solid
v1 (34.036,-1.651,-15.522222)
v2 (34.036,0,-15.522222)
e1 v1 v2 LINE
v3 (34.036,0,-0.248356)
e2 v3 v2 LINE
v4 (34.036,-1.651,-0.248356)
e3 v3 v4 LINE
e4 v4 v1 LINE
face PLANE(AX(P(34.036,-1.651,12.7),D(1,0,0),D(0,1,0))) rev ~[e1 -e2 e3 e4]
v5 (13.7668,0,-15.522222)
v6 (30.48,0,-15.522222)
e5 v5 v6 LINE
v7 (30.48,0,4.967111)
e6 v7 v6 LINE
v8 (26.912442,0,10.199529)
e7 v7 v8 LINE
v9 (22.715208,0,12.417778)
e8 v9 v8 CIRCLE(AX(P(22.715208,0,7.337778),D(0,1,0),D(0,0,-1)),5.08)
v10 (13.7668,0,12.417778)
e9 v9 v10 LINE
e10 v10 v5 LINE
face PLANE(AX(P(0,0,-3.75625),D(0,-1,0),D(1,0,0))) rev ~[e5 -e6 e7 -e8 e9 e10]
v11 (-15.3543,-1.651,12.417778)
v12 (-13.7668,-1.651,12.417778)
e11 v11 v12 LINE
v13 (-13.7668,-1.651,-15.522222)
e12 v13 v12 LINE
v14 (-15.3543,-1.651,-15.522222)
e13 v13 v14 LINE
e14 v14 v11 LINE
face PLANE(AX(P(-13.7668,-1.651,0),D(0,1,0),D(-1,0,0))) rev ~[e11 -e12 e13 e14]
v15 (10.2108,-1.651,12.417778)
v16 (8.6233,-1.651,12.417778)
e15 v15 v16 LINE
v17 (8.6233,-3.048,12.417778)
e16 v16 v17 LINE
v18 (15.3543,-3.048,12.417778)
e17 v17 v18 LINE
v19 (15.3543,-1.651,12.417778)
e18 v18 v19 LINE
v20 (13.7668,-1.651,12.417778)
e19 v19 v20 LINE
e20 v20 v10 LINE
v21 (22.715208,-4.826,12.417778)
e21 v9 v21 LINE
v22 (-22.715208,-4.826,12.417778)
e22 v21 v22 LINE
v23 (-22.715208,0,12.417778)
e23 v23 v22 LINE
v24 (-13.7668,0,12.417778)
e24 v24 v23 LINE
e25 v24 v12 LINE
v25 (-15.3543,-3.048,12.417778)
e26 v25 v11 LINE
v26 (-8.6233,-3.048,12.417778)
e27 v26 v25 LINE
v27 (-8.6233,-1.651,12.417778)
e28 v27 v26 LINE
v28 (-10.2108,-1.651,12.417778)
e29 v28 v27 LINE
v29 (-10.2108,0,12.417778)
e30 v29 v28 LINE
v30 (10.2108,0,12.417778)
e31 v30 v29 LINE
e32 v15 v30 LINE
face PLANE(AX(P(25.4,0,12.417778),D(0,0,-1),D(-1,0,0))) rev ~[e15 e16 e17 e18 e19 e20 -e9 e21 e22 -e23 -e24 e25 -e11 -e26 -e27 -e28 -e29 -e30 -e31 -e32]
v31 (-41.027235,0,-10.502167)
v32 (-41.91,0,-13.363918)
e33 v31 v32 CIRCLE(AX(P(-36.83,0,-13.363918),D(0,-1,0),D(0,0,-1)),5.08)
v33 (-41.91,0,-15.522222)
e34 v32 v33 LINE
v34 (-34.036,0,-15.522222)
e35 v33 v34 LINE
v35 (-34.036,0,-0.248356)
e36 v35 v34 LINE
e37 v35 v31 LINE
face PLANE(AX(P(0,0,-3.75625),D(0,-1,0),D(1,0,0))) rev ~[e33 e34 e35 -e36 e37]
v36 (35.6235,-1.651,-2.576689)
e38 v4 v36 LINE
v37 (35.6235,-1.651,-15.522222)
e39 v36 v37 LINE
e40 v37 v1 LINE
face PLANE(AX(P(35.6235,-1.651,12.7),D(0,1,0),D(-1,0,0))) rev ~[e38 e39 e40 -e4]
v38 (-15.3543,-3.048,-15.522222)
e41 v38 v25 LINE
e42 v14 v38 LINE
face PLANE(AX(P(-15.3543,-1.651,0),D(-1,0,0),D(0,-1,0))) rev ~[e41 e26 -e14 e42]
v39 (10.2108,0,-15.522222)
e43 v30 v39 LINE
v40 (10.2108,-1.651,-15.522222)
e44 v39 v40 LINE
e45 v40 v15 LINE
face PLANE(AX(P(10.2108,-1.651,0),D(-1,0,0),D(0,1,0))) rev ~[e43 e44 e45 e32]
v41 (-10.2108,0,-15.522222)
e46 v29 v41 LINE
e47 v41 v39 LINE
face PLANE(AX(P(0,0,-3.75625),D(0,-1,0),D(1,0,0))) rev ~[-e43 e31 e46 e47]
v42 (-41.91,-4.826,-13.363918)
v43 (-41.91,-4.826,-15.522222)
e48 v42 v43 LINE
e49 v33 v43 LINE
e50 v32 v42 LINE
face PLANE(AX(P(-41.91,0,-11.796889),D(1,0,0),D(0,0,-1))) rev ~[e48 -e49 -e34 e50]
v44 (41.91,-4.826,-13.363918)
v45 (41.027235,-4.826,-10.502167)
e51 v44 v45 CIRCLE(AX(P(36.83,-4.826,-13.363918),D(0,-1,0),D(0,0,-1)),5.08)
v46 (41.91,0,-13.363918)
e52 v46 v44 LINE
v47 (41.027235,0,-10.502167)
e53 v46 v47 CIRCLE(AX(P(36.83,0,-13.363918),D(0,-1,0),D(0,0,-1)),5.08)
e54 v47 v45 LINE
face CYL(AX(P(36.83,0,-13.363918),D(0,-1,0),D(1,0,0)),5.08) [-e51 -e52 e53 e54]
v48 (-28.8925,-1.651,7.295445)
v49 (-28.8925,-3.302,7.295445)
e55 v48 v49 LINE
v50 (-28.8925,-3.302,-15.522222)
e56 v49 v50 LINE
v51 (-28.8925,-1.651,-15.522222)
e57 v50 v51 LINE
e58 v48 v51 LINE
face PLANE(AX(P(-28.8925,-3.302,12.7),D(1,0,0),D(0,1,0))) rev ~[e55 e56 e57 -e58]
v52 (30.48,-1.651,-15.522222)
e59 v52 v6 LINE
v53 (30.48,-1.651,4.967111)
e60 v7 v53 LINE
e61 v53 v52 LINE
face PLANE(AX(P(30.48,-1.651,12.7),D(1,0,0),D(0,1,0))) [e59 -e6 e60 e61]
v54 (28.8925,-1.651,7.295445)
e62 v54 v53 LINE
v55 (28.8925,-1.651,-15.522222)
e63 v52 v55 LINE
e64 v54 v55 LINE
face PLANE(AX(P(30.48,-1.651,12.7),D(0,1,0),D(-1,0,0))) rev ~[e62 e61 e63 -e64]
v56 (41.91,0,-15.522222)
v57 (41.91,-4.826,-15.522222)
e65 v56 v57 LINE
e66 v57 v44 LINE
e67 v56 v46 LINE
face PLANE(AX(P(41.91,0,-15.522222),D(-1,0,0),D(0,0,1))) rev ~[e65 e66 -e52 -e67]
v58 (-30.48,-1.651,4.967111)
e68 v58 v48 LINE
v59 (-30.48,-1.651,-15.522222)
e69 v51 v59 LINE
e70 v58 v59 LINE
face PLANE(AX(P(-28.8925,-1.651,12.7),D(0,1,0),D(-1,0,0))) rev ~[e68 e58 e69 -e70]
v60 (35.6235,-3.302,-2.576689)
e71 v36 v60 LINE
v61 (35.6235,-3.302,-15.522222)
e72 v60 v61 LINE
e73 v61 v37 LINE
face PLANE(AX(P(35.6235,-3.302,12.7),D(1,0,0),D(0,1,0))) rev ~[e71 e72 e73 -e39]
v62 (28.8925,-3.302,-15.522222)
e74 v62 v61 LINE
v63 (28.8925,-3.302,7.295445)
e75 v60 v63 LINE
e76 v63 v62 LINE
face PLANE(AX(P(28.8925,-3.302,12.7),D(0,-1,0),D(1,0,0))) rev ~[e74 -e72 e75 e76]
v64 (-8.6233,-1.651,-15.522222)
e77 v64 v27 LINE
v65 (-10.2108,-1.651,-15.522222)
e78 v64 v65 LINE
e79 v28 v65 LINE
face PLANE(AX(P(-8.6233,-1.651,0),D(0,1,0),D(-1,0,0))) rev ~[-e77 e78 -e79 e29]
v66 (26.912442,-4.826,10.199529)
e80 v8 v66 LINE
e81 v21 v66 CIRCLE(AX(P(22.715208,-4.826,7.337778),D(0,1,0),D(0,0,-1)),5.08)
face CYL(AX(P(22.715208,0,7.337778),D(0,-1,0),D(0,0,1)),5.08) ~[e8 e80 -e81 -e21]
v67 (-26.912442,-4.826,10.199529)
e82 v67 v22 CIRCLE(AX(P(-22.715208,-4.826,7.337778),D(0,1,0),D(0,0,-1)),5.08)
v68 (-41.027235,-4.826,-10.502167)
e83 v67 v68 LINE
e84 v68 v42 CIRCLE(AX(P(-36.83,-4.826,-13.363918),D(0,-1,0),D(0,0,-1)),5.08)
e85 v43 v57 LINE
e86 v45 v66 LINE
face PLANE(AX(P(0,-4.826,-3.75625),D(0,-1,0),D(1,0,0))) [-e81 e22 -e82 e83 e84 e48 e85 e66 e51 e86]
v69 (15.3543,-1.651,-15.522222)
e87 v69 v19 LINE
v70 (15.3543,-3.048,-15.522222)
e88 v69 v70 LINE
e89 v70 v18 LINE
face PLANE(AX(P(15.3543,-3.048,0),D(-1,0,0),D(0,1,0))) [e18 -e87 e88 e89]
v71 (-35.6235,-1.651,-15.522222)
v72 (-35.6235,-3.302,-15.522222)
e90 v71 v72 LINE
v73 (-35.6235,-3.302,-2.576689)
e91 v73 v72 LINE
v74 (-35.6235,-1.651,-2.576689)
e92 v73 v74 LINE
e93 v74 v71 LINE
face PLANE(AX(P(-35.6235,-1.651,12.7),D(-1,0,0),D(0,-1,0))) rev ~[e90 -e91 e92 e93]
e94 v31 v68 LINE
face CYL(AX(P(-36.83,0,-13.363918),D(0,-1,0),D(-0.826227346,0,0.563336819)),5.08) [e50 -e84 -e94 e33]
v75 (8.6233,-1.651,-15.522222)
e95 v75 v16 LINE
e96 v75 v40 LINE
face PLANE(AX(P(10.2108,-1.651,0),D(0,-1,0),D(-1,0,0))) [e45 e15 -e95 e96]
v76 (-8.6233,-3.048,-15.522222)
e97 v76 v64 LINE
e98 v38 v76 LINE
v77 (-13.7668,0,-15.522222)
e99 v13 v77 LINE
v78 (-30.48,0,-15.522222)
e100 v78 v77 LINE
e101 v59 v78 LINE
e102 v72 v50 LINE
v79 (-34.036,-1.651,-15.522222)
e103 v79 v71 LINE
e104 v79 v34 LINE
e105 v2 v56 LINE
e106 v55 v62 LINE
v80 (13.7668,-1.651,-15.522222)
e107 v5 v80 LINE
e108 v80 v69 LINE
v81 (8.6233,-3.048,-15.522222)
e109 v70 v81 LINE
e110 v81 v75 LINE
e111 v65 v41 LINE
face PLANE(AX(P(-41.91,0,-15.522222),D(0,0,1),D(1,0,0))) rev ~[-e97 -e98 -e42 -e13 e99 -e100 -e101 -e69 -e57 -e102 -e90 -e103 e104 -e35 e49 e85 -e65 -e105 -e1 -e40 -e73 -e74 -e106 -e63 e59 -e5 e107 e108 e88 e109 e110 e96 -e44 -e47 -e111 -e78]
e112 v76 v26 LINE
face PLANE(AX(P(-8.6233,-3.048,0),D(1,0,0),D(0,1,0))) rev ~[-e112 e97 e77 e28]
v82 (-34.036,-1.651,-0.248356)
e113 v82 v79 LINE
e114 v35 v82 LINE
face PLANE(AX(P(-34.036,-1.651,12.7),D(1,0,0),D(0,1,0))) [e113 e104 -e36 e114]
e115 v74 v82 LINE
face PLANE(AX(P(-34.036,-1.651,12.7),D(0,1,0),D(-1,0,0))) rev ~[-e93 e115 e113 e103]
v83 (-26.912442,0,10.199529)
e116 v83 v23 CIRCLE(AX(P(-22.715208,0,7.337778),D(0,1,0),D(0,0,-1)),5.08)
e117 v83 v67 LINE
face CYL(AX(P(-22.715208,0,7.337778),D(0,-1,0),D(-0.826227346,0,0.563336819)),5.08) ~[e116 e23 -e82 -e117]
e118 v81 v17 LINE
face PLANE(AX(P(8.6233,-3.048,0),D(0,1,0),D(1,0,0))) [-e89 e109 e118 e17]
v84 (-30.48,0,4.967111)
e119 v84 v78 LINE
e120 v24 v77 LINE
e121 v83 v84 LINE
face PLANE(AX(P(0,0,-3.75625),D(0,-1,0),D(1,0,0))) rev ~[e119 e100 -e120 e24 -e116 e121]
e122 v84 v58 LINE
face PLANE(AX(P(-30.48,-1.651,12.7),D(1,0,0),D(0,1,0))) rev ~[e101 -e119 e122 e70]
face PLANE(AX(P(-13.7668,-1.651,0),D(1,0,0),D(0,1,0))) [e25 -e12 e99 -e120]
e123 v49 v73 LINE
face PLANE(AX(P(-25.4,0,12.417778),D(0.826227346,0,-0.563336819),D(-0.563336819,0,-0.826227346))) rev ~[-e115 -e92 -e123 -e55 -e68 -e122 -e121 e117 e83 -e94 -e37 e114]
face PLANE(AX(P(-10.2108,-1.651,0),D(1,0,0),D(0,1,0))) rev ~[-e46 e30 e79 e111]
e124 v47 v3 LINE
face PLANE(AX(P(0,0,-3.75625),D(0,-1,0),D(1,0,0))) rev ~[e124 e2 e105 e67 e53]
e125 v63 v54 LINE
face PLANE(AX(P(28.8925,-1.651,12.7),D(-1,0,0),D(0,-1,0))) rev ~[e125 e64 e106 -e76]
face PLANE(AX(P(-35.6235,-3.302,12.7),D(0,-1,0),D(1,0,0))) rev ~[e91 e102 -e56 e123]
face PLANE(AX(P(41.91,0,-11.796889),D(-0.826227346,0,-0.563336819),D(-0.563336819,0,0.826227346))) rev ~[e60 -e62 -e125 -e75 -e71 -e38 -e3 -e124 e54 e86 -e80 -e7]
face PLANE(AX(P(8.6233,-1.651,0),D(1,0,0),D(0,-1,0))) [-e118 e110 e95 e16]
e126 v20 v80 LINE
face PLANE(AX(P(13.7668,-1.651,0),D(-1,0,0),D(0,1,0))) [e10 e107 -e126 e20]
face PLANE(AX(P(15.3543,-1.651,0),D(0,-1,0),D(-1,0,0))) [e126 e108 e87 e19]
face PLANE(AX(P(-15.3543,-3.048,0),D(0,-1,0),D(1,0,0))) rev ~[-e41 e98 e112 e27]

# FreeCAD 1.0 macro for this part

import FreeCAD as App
import Part
import Sketcher
Q = App.Units.Quantity


def edges_at(feature, points):
    """Names of the edges that pass closest to the given points."""
    edges = feature.Shape.Edges
    near = lambda p: min(range(len(edges)), key=lambda i: edges[i].distToShape(Part.Vertex(*p))[0])
    return sorted({f"Edge{near(p) + 1}" for p in points})


def add_polygon(sketch, points):
    """Adds a closed chain of lines whose ends are joined by coincident constraints."""
    first, n = sketch.GeometryCount, len(points)
    for a, b in zip(points, points[1:] + points[:1]):
        sketch.addGeometry(Part.LineSegment(App.Vector(*a, 0), App.Vector(*b, 0)), False)
    for i in range(n):
        sketch.addConstraint(Sketcher.Constraint("Coincident", first + i, 2, first + (i + 1) % n, 1))

doc = App.newDocument("Part")
params = doc.addObject("Spreadsheet::Sheet", "Params")
for row, (alias, value) in enumerate([
    ("sketch1_width", "2 in"),
    ("sketch1_width2", "3.3 in"),
    ("pad1_length", "0.19 in"),
    ("sketch2_width", "0.14 in"),
    ("sketch2_width2", "0.0625 in"),
    ("sketch2_height", "0.065 in"),
    ("sketch2_height2", "0.055 in"),
    ("pocket1_length", "2 in"),
    ("sketch3_width", "0.14 in"),
    ("sketch3_width2", "0.0625 in"),
    ("sketch3_height", "0.065 in"),
    ("pocket2_length", "2 in"),
    ("fillet_radius", "0.2 in"),
    ("fillet2_radius", "0.2 in"),
], start=1):
    params.set(f"A{row}", alias)
    params.set(f"B{row}", "=" + value)
    params.setAlias(f"B{row}", alias)

body = doc.addObject("PartDesign::Body", "Body")

# Sketch on XZ plane
sketch1 = body.newObject("Sketcher::SketchObject", "Sketch")
sketch1.AttachmentSupport = (doc.getObject("XZ_Plane"), [""])
sketch1.MapMode = "FlatFace"
add_polygon(sketch1, [(-25.4, 12.4), (-41.9, -11.8), (-41.9, -15.5), (41.9, -15.5), (41.9, -11.8), (25.4, 12.4)])  # lines 0-5
sketch1.addConstraint(Sketcher.Constraint("Vertical", 1))
sketch1.addConstraint(Sketcher.Constraint("Horizontal", 2))
sketch1.addConstraint(Sketcher.Constraint("Vertical", 3))
sketch1.addConstraint(Sketcher.Constraint("Horizontal", 5))
sketch1.addConstraint(Sketcher.Constraint("Symmetric", 0, 2, 3, 2, -2))
sketch1.addConstraint(Sketcher.Constraint("Equal", 0, 4))
sketch1.addConstraint(Sketcher.Constraint("DistanceX", 5, 2, 5, 1, Q("2 in")))
sketch1.addConstraint(Sketcher.Constraint("DistanceX", 2, 1, 2, 2, Q("3.3 in")))
sketch1.addConstraint(Sketcher.Constraint("DistanceY", 2, 2, 4, 2, Q("1.1 in")))
sketch1.addConstraint(Sketcher.Constraint("Distance", 0, Q("29.307511 mm")))
sketch1.addConstraint(Sketcher.Constraint("DistanceY", 0, 2, -1, 1, Q("11.796889 mm")))
sketch1.setExpression("Constraints[12]", "Params.sketch1_width")
sketch1.setExpression("Constraints[13]", "Params.sketch1_width2")
pad1 = body.newObject("PartDesign::Pad", "Pad")
pad1.Profile = sketch1
pad1.setExpression("Length", "Params.pad1_length")

# Sketch on XY plane
sketch2 = body.newObject("Sketcher::SketchObject", "Sketch001")
sketch2.AttachmentSupport = (doc.getObject("XY_Plane"), [""])
sketch2.MapMode = "FlatFace"
add_polygon(sketch2, [(10.2, 0), (10.2, -1.7), (8.6, -1.7), (8.6, -3), (15.4, -3), (15.4, -1.7), (13.8, -1.7), (13.8, 0)])  # lines 0-7
add_polygon(sketch2, [(-13.8, 0), (-13.8, -1.7), (-15.4, -1.7), (-15.4, -3), (-8.6, -3), (-8.6, -1.7), (-10.2, -1.7), (-10.2, 0)])  # lines 8-15
sketch2.addConstraint(Sketcher.Constraint("Vertical", 0))
sketch2.addConstraint(Sketcher.Constraint("Horizontal", 1))
sketch2.addConstraint(Sketcher.Constraint("Vertical", 2))
sketch2.addConstraint(Sketcher.Constraint("Horizontal", 3))
sketch2.addConstraint(Sketcher.Constraint("Vertical", 4))
sketch2.addConstraint(Sketcher.Constraint("Horizontal", 5))
sketch2.addConstraint(Sketcher.Constraint("Vertical", 6))
sketch2.addConstraint(Sketcher.Constraint("Horizontal", 7))
sketch2.addConstraint(Sketcher.Constraint("Vertical", 8))
sketch2.addConstraint(Sketcher.Constraint("Horizontal", 9))
sketch2.addConstraint(Sketcher.Constraint("Vertical", 10))
sketch2.addConstraint(Sketcher.Constraint("Horizontal", 11))
sketch2.addConstraint(Sketcher.Constraint("Vertical", 12))
sketch2.addConstraint(Sketcher.Constraint("Horizontal", 13))
sketch2.addConstraint(Sketcher.Constraint("Vertical", 14))
sketch2.addConstraint(Sketcher.Constraint("Horizontal", 15))
sketch2.addConstraint(Sketcher.Constraint("Symmetric", 7, 2, 14, 2, -1, 1))
sketch2.addConstraint(Sketcher.Constraint("Symmetric", 5, 2, 8, 2, -2))
sketch2.addConstraint(Sketcher.Constraint("Symmetric", 3, 2, 10, 2, -2))
sketch2.addConstraint(Sketcher.Constraint("Symmetric", 1, 2, 12, 2, -2))
sketch2.addConstraint(Sketcher.Constraint("PointOnObject", 6, 2, -1))
sketch2.addConstraint(Sketcher.Constraint("Horizontal", 1, 2, 4, 2))
sketch2.addConstraint(Sketcher.Constraint("Equal", 1, 5))
sketch2.addConstraint(Sketcher.Constraint("DistanceX", 7, 2, 7, 1, Q("0.14 in")))
sketch2.addConstraint(Sketcher.Constraint("DistanceX", 1, 2, 1, 1, Q("0.0625 in")))
sketch2.addConstraint(Sketcher.Constraint("DistanceY", 0, 2, 0, 1, Q("0.065 in")))
sketch2.addConstraint(Sketcher.Constraint("DistanceY", 2, 2, 2, 1, Q("0.055 in")))
sketch2.addConstraint(Sketcher.Constraint("DistanceX", -1, 1, 0, 2, Q("0.402 in")))
sketch2.setExpression("Constraints[39]", "Params.sketch2_width")
sketch2.setExpression("Constraints[40]", "Params.sketch2_width2")
sketch2.setExpression("Constraints[41]", "Params.sketch2_height")
sketch2.setExpression("Constraints[42]", "Params.sketch2_height2")
pocket1 = body.newObject("PartDesign::Pocket", "Pocket")
pocket1.Profile = sketch2
pocket1.setExpression("Length", "Params.pocket1_length")
pocket1.Midplane = True

# Sketch on XY plane
sketch3 = body.newObject("Sketcher::SketchObject", "Sketch002")
sketch3.AttachmentSupport = (doc.getObject("XY_Plane"), [""])
sketch3.MapMode = "FlatFace"
sketch3.AttachmentOffset = App.Placement(App.Vector(0, 0, 0.5 * 25.4), App.Rotation())
add_polygon(sketch3, [(-34, 0), (-34, -1.7), (-35.6, -1.7), (-35.6, -3.3), (-28.9, -3.3), (-28.9, -1.7), (-30.5, -1.7), (-30.5, 0)])  # lines 0-7
add_polygon(sketch3, [(30.5, 0), (30.5, -1.7), (28.9, -1.7), (28.9, -3.3), (35.6, -3.3), (35.6, -1.7), (34, -1.7), (34, 0)])  # lines 8-15
sketch3.addConstraint(Sketcher.Constraint("Vertical", 0))
sketch3.addConstraint(Sketcher.Constraint("Horizontal", 1))
sketch3.addConstraint(Sketcher.Constraint("Vertical", 2))
sketch3.addConstraint(Sketcher.Constraint("Horizontal", 3))
sketch3.addConstraint(Sketcher.Constraint("Vertical", 4))
sketch3.addConstraint(Sketcher.Constraint("Horizontal", 5))
sketch3.addConstraint(Sketcher.Constraint("Vertical", 6))
sketch3.addConstraint(Sketcher.Constraint("Horizontal", 7))
sketch3.addConstraint(Sketcher.Constraint("Vertical", 8))
sketch3.addConstraint(Sketcher.Constraint("Horizontal", 9))
sketch3.addConstraint(Sketcher.Constraint("Vertical", 10))
sketch3.addConstraint(Sketcher.Constraint("Horizontal", 11))
sketch3.addConstraint(Sketcher.Constraint("Vertical", 12))
sketch3.addConstraint(Sketcher.Constraint("Horizontal", 13))
sketch3.addConstraint(Sketcher.Constraint("Vertical", 14))
sketch3.addConstraint(Sketcher.Constraint("Horizontal", 15))
sketch3.addConstraint(Sketcher.Constraint("Symmetric", 7, 2, 14, 2, -1, 1))
sketch3.addConstraint(Sketcher.Constraint("Symmetric", 5, 2, 8, 2, -2))
sketch3.addConstraint(Sketcher.Constraint("Symmetric", 3, 2, 10, 2, -2))
sketch3.addConstraint(Sketcher.Constraint("Symmetric", 1, 2, 12, 2, -2))
sketch3.addConstraint(Sketcher.Constraint("PointOnObject", 6, 2, -1))
sketch3.addConstraint(Sketcher.Constraint("Horizontal", 1, 2, 4, 2))
sketch3.addConstraint(Sketcher.Constraint("Equal", 1, 5))
sketch3.addConstraint(Sketcher.Constraint("Equal", 0, 2))
sketch3.addConstraint(Sketcher.Constraint("DistanceX", 7, 2, 7, 1, Q("0.14 in")))
sketch3.addConstraint(Sketcher.Constraint("DistanceX", 5, 2, -1, 1, Q("1.2 in")))
sketch3.addConstraint(Sketcher.Constraint("DistanceX", 1, 2, 1, 1, Q("0.0625 in")))
sketch3.addConstraint(Sketcher.Constraint("DistanceY", 0, 2, 0, 1, Q("0.065 in")))
sketch3.setExpression("Constraints[40]", "Params.sketch3_width")
sketch3.setExpression("Constraints[42]", "Params.sketch3_width2")
sketch3.setExpression("Constraints[43]", "Params.sketch3_height")
pocket2 = body.newObject("PartDesign::Pocket", "Pocket001")
pocket2.Profile = sketch3
pocket2.setExpression("Length", "Params.pocket2_length")
doc.recompute()

fillet = body.newObject("PartDesign::Fillet", "Fillet")
fillet.Base = (pocket2, edges_at(pocket2, [(-41.91, -2.413, -11.797), (41.91, -2.413, -11.797)]))
fillet.setExpression("Radius", "Params.fillet_radius")
doc.recompute()

fillet2 = body.newObject("PartDesign::Fillet", "Fillet001")
fillet2.Base = (fillet, edges_at(fillet, [(-25.4, -2.413, 12.418), (25.4, -2.413, 12.418)]))
fillet2.setExpression("Radius", "Params.fillet2_radius")

doc.recompute()
